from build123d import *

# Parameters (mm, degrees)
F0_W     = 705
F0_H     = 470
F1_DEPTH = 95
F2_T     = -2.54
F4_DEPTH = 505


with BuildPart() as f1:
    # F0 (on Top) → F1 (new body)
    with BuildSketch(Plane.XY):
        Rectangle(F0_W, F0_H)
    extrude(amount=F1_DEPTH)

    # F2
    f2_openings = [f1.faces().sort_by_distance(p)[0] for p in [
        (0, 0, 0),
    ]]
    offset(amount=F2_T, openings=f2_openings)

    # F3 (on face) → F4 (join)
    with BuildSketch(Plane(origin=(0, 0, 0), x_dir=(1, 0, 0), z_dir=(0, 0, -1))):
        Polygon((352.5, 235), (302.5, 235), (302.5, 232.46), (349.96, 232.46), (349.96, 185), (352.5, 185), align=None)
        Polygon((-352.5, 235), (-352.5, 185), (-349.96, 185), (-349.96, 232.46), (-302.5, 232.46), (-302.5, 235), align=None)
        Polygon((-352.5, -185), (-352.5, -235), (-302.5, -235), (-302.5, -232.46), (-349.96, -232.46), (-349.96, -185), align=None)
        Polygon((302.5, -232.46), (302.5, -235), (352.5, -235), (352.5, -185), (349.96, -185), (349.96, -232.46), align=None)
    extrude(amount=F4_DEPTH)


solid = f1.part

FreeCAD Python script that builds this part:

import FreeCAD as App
import Part
import Sketcher
from FreeCAD import Vector


def faces_at(feature, points):
    """Names of the faces that lie closest to the given points."""
    faces = feature.Shape.Faces
    near = lambda p: min(range(len(faces)), key=lambda i: faces[i].distToShape(Part.Vertex(*p))[0])
    return sorted({f"Face{near(p) + 1}" for p in points})

doc = App.newDocument("Part")
body = doc.addObject("PartDesign::Body", "Body")

# Sketch on XY plane
sketch1 = body.newObject("Sketcher::SketchObject", "Sketch")
sketch1.AttachmentSupport = (doc.getObject("XY_Plane"), [""])
sketch1.MapMode = "FlatFace"
sketch1.addGeometry([
    Part.LineSegment(Vector(-352, 235, 0), Vector(-352, -235, 0)),
    Part.LineSegment(Vector(-352, -235, 0), Vector(352, -235, 0)),
    Part.LineSegment(Vector(352, -235, 0), Vector(352, 235, 0)),
    Part.LineSegment(Vector(352, 235, 0), Vector(-352, 235, 0)),
], False)
sketch1.addConstraint([
    Sketcher.Constraint("Coincident", 0, 2, 1, 1),
    Sketcher.Constraint("Coincident", 1, 2, 2, 1),
    Sketcher.Constraint("Coincident", 2, 2, 3, 1),
    Sketcher.Constraint("Coincident", 3, 2, 0, 1),
    Sketcher.Constraint("Vertical", 0),
    Sketcher.Constraint("Horizontal", 1),
    Sketcher.Constraint("Vertical", 2),
    Sketcher.Constraint("Horizontal", 3),
    Sketcher.Constraint("Symmetric", 0, 2, 2, 2, -1, 1),
    Sketcher.Constraint("DistanceX", 1, 1, 1, 2, 705.0),
    Sketcher.Constraint("DistanceY", 0, 2, 0, 1, 470.0),
])
pad1 = body.newObject("PartDesign::Pad", "Pad")
pad1.Profile = sketch1
pad1.Length = 95
doc.recompute()

thickness = body.newObject("PartDesign::Thickness", "Thickness")
thickness.Base = (pad1, faces_at(pad1, [(0, 0, 0)]))
thickness.Value = 2.54
thickness.Reversed = True
thickness.Join = "Arc"

# Sketch on XY plane
sketch2 = body.newObject("Sketcher::SketchObject", "Sketch001")
sketch2.AttachmentSupport = (doc.getObject("XY_Plane"), [""])
sketch2.MapMode = "FlatFace"
sketch2.addGeometry([
    Part.LineSegment(Vector(352.5, -235, 0), Vector(302.5, -235, 0)),  # 0
    Part.LineSegment(Vector(302.5, -235, 0), Vector(302.5, -232.5, 0)),  # 1
    Part.LineSegment(Vector(302.5, -232.5, 0), Vector(350, -232.5, 0)),  # 2
    Part.LineSegment(Vector(350, -232.5, 0), Vector(350, -185, 0)),  # 3
    Part.LineSegment(Vector(350, -185, 0), Vector(352.5, -185, 0)),  # 4
    Part.LineSegment(Vector(352.5, -185, 0), Vector(352.5, -235, 0)),  # 5
    Part.LineSegment(Vector(-352.5, -235, 0), Vector(-352.5, -185, 0)),  # 6
    Part.LineSegment(Vector(-352.5, -185, 0), Vector(-350, -185, 0)),  # 7
    Part.LineSegment(Vector(-350, -185, 0), Vector(-350, -232.5, 0)),  # 8
    Part.LineSegment(Vector(-350, -232.5, 0), Vector(-302.5, -232.5, 0)),  # 9
    Part.LineSegment(Vector(-302.5, -232.5, 0), Vector(-302.5, -235, 0)),  # 10
    Part.LineSegment(Vector(-302.5, -235, 0), Vector(-352.5, -235, 0)),  # 11
    Part.LineSegment(Vector(-352.5, 185, 0), Vector(-352.5, 235, 0)),  # 12
    Part.LineSegment(Vector(-352.5, 235, 0), Vector(-302.5, 235, 0)),  # 13
    Part.LineSegment(Vector(-302.5, 235, 0), Vector(-302.5, 232.5, 0)),  # 14
    Part.LineSegment(Vector(-302.5, 232.5, 0), Vector(-350, 232.5, 0)),  # 15
    Part.LineSegment(Vector(-350, 232.5, 0), Vector(-350, 185, 0)),  # 16
    Part.LineSegment(Vector(-350, 185, 0), Vector(-352.5, 185, 0)),  # 17
    Part.LineSegment(Vector(302.5, 232.5, 0), Vector(302.5, 235, 0)),  # 18
    Part.LineSegment(Vector(302.5, 235, 0), Vector(352.5, 235, 0)),  # 19
    Part.LineSegment(Vector(352.5, 235, 0), Vector(352.5, 185, 0)),  # 20
    Part.LineSegment(Vector(352.5, 185, 0), Vector(350, 185, 0)),  # 21
    Part.LineSegment(Vector(350, 185, 0), Vector(350, 232.5, 0)),  # 22
    Part.LineSegment(Vector(350, 232.5, 0), Vector(302.5, 232.5, 0)),  # 23
], False)
sketch2.addConstraint([
    Sketcher.Constraint("Coincident", 0, 2, 1, 1),
    Sketcher.Constraint("Coincident", 1, 2, 2, 1),
    Sketcher.Constraint("Coincident", 2, 2, 3, 1),
    Sketcher.Constraint("Coincident", 3, 2, 4, 1),
    Sketcher.Constraint("Coincident", 4, 2, 5, 1),
    Sketcher.Constraint("Coincident", 5, 2, 0, 1),
    Sketcher.Constraint("Coincident", 6, 2, 7, 1),
    Sketcher.Constraint("Coincident", 7, 2, 8, 1),
    Sketcher.Constraint("Coincident", 8, 2, 9, 1),
    Sketcher.Constraint("Coincident", 9, 2, 10, 1),
    Sketcher.Constraint("Coincident", 10, 2, 11, 1),
    Sketcher.Constraint("Coincident", 11, 2, 6, 1),
    Sketcher.Constraint("Coincident", 12, 2, 13, 1),
    Sketcher.Constraint("Coincident", 13, 2, 14, 1),
    Sketcher.Constraint("Coincident", 14, 2, 15, 1),
    Sketcher.Constraint("Coincident", 15, 2, 16, 1),
    Sketcher.Constraint("Coincident", 16, 2, 17, 1),
    Sketcher.Constraint("Coincident", 17, 2, 12, 1),
    Sketcher.Constraint("Coincident", 18, 2, 19, 1),
    Sketcher.Constraint("Coincident", 19, 2, 20, 1),
    Sketcher.Constraint("Coincident", 20, 2, 21, 1),
    Sketcher.Constraint("Coincident", 21, 2, 22, 1),
    Sketcher.Constraint("Coincident", 22, 2, 23, 1),
    Sketcher.Constraint("Coincident", 23, 2, 18, 1),
    Sketcher.Constraint("Horizontal", 0),
    Sketcher.Constraint("Vertical", 1),
    Sketcher.Constraint("Horizontal", 2),
    Sketcher.Constraint("Vertical", 3),
    Sketcher.Constraint("Horizontal", 4),
    Sketcher.Constraint("Vertical", 5),
    Sketcher.Constraint("Vertical", 6),
    Sketcher.Constraint("Horizontal", 7),
    Sketcher.Constraint("Vertical", 8),
    Sketcher.Constraint("Horizontal", 9),
    Sketcher.Constraint("Vertical", 10),
    Sketcher.Constraint("Horizontal", 11),
    Sketcher.Constraint("Vertical", 12),
    Sketcher.Constraint("Horizontal", 13),
    Sketcher.Constraint("Vertical", 14),
    Sketcher.Constraint("Horizontal", 15),
    Sketcher.Constraint("Vertical", 16),
    Sketcher.Constraint("Horizontal", 17),
    Sketcher.Constraint("Vertical", 18),
    Sketcher.Constraint("Horizontal", 19),
    Sketcher.Constraint("Vertical", 20),
    Sketcher.Constraint("Horizontal", 21),
    Sketcher.Constraint("Vertical", 22),
    Sketcher.Constraint("Horizontal", 23),
    Sketcher.Constraint("Symmetric", 5, 2, 12, 2, -1, 1),
    Sketcher.Constraint("Symmetric", 1, 2, 14, 2, -1, 1),
    Sketcher.Constraint("Symmetric", 3, 2, 16, 2, -1, 1),
    Sketcher.Constraint("Symmetric", 10, 2, 18, 2, -1, 1),
    Sketcher.Constraint("Symmetric", 6, 2, 20, 2, -1, 1),
    Sketcher.Constraint("Symmetric", 8, 2, 22, 2, -1, 1),
    Sketcher.Constraint("Symmetric", 4, 2, 6, 2, -2),
    Sketcher.Constraint("Symmetric", 2, 2, 8, 2, -2),
    Sketcher.Constraint("Symmetric", 0, 2, 10, 2, -2),
    Sketcher.Constraint("Equal", 21, 1),
    Sketcher.Constraint("Equal", 23, 3),
    Sketcher.Constraint("DistanceX", 0, 2, 0, 1, 50.0),
    Sketcher.Constraint("DistanceY", 0, 2, -1, 1, 235.0),
    Sketcher.Constraint("DistanceX", 6, 2, 1, 2, 655.0),
    Sketcher.Constraint("DistanceX", 2, 1, 2, 2, 47.46),
])
pad2 = body.newObject("PartDesign::Pad", "Pad001")
pad2.Profile = sketch2
pad2.Length = 505
pad2.Reversed = True

doc.recompute()
